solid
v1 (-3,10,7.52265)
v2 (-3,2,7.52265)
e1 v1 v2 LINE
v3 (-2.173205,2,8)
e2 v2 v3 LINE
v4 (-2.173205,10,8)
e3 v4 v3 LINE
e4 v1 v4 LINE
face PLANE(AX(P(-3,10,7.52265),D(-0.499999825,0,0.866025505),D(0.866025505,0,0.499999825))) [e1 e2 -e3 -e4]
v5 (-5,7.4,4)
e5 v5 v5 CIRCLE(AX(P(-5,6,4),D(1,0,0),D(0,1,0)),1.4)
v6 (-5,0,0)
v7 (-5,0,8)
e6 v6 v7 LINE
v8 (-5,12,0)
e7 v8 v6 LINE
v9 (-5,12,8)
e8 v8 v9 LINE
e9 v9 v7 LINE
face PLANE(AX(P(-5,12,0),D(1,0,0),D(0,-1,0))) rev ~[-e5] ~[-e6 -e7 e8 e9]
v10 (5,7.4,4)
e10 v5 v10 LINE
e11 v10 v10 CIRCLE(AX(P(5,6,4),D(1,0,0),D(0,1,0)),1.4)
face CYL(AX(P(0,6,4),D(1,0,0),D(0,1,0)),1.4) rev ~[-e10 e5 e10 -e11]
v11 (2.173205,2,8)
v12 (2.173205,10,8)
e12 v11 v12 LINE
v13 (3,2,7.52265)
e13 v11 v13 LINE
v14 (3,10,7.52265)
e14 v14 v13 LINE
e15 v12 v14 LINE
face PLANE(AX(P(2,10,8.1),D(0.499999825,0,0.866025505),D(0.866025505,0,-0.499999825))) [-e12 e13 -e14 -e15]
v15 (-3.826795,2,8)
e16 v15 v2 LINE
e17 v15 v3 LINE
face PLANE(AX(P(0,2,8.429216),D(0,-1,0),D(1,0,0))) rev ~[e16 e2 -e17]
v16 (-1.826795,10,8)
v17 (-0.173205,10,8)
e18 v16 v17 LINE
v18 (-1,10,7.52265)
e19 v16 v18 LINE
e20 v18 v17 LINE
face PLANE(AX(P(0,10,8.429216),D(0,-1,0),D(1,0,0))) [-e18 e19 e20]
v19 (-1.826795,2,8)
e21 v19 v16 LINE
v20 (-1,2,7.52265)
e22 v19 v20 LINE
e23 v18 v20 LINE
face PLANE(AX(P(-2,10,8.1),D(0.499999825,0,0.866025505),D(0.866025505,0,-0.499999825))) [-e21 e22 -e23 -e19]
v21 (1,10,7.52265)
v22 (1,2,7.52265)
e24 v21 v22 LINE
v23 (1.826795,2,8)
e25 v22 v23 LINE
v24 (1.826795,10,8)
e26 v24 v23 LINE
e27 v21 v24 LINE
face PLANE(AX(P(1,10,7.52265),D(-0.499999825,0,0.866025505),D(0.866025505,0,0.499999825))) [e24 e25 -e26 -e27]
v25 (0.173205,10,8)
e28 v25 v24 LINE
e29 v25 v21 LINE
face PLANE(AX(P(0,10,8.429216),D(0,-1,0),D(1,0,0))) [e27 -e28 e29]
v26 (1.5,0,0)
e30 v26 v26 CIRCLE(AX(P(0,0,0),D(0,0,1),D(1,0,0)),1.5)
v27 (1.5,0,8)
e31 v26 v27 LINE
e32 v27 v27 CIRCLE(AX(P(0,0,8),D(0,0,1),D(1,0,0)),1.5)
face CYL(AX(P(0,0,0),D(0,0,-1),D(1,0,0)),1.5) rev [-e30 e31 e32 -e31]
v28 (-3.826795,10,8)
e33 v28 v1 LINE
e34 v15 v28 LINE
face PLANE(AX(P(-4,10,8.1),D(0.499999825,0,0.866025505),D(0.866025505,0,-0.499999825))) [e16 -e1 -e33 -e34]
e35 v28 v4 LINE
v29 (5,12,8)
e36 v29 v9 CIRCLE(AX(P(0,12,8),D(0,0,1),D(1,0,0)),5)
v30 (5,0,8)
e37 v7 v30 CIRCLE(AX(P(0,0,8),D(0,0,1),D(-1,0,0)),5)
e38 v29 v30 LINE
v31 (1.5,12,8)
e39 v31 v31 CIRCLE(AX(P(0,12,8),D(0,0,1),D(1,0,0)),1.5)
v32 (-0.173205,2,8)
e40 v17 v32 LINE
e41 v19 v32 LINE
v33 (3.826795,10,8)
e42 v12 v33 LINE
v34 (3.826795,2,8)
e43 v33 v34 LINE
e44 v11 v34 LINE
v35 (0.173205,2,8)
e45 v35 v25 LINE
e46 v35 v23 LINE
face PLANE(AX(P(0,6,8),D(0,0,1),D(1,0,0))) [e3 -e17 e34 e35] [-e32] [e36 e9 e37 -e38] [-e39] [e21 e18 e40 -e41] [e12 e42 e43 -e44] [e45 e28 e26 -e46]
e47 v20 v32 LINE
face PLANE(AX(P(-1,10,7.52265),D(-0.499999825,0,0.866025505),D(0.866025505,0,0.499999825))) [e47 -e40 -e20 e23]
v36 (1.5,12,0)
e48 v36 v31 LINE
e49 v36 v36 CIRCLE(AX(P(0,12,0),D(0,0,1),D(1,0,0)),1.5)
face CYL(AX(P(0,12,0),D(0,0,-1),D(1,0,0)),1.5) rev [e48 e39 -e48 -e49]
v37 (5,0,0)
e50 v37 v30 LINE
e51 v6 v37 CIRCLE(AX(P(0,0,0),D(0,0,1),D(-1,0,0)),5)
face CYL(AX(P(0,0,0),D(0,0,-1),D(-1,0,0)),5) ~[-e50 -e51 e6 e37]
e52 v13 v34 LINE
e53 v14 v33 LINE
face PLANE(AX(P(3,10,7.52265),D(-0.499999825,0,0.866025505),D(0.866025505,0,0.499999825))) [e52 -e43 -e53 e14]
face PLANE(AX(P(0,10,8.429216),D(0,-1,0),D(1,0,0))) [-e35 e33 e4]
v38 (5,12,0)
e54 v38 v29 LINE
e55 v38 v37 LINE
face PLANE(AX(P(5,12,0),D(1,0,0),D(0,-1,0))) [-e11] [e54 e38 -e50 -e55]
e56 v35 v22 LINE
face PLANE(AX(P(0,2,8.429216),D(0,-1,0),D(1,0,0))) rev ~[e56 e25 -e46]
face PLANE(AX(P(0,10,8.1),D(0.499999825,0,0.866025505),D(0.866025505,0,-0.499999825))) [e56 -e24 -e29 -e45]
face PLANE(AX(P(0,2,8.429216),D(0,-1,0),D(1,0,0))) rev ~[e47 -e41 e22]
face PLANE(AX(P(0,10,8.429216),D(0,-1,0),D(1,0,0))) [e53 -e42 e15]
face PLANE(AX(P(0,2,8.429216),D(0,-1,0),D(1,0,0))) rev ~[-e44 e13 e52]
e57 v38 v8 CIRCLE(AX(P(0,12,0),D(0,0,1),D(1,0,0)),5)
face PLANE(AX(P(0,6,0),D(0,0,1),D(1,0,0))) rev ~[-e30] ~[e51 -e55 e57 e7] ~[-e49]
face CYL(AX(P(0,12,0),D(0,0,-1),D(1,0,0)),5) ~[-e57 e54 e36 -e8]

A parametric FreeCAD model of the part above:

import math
import FreeCAD as App
import Part
import Sketcher

V = App.Vector
Q = App.Units.Quantity

doc = App.newDocument("Part")
body = doc.addObject("PartDesign::Body", "Body")

# Sketch on XZ plane
sketch1 = doc.addObject("Sketcher::SketchObject", "Sketch")
body.addObject(sketch1)
sketch1.AttachmentSupport = (doc.XZ_Plane, [""])
sketch1.MapMode = "FlatFace"
sketch1.AttachmentOffset = App.Placement(V(0, 0, -10), App.Rotation())
sketch1.addGeometry([
    Part.LineSegment(V(-4, 8.1, 0), V(-3, 7.5, 0)),  # 0
    Part.LineSegment(V(-3, 7.5, 0), V(-2, 8.1, 0)),  # 1
    Part.LineSegment(V(-2, 8.1, 0), V(-1, 7.5, 0)),  # 2
    Part.LineSegment(V(-1, 7.5, 0), V(0, 8.1, 0)),  # 3
    Part.LineSegment(V(0, 8.1, 0), V(1, 7.5, 0)),  # 4
    Part.LineSegment(V(1, 7.5, 0), V(2, 8.1, 0)),  # 5
    Part.LineSegment(V(2, 8.1, 0), V(3, 7.5, 0)),  # 6
    Part.LineSegment(V(3, 7.5, 0), V(4, 8.1, 0)),  # 7
    Part.LineSegment(V(4, 8.1, 0), V(4, 9.1, 0)),  # 8
    Part.LineSegment(V(4, 9.1, 0), V(-4, 9.1, 0)),  # 9
    Part.LineSegment(V(-4, 9.1, 0), V(-4, 8.1, 0)),  # 10
], False)
sketch1.addConstraint([
    Sketcher.Constraint("Coincident", 0, 2, 1, 1),
    Sketcher.Constraint("Coincident", 1, 2, 2, 1),
    Sketcher.Constraint("Coincident", 2, 2, 3, 1),
    Sketcher.Constraint("Coincident", 3, 2, 4, 1),
    Sketcher.Constraint("Coincident", 4, 2, 5, 1),
    Sketcher.Constraint("Coincident", 5, 2, 6, 1),
    Sketcher.Constraint("Coincident", 6, 2, 7, 1),
    Sketcher.Constraint("Coincident", 7, 2, 8, 1),
    Sketcher.Constraint("Coincident", 8, 2, 9, 1),
    Sketcher.Constraint("Coincident", 9, 2, 10, 1),
    Sketcher.Constraint("Coincident", 10, 2, 0, 1),
    Sketcher.Constraint("Vertical", 8),
    Sketcher.Constraint("Horizontal", 9),
    Sketcher.Constraint("Vertical", 10),
    Sketcher.Constraint("Symmetric", 2, 2, 4, 2, -2),
    Sketcher.Constraint("Symmetric", 1, 2, 5, 2, -2),
    Sketcher.Constraint("Symmetric", 0, 2, 6, 2, -2),
    Sketcher.Constraint("Symmetric", 7, 2, 10, 2, -2),
    Sketcher.Constraint("PointOnObject", 3, 2, -2),
    Sketcher.Constraint("Parallel", 0, 2),
    Sketcher.Constraint("Parallel", 1, 3),
    Sketcher.Constraint("Parallel", 2, 4),
    Sketcher.Constraint("Horizontal", 0, 2, 2, 2),
    Sketcher.Constraint("Horizontal", 1, 2, 3, 2),
    Sketcher.Constraint("Horizontal", 5, 2, 7, 2),
    Sketcher.Constraint("DistanceX", 9, 2, 9, 1, 8.0),
    Sketcher.Constraint("DistanceY", 8, 1, 8, 2, 1.0),
    Sketcher.Constraint("Angle", 0, Q("-29.999988 deg")),
    Sketcher.Constraint("DistanceY", -1, 1, 1, 2, 8.1),
])
pad1 = doc.addObject("PartDesign::Pad", "Pad")
body.addObject(pad1)
pad1.Profile = sketch1
pad1.Length = 8
body2 = doc.addObject("PartDesign::Body", "Body001")
body2.AllowCompound = True

# Sketch on YZ plane
sketch2 = doc.addObject("Sketcher::SketchObject", "Sketch001")
body2.addObject(sketch2)
sketch2.AttachmentSupport = (doc.getObject("YZ_Plane001"), [""])
sketch2.MapMode = "FlatFace"
sketch2.addGeometry(Part.Circle(V(6, 4, 0), V(0, 0, 1), 1.4), False)
sketch2.addConstraint([
    Sketcher.Constraint("Diameter", 0, 2.8),
    Sketcher.Constraint("DistanceX", -1, 1, 0, 3, 6.0),
    Sketcher.Constraint("DistanceY", -1, 1, 0, 3, 4.0),
])
pad2 = doc.addObject("PartDesign::Pad", "Pad001")
body2.addObject(pad2)
pad2.Profile = sketch2
pad2.Length = 10
pad2.Midplane = True
doc.recompute()

boolean = doc.addObject("PartDesign::Boolean", "Boolean")
body2.addObject(boolean)
boolean.Type = "Fuse"
boolean.addObjects([body])
body3 = doc.addObject("PartDesign::Body", "Body002")

# Sketch on XY plane
sketch3 = doc.addObject("Sketcher::SketchObject", "Sketch002")
body3.addObject(sketch3)
sketch3.AttachmentSupport = (doc.getObject("XY_Plane002"), [""])
sketch3.MapMode = "FlatFace"
sketch3.addGeometry([
    Part.ArcOfCircle(Part.Circle(V(0, 12, 0), V(0, 0, 1), 5), math.radians(0), math.radians(180)),  # 0
    Part.LineSegment(V(-5, 12, 0), V(-5, 0, 0)),  # 1
    Part.ArcOfCircle(Part.Circle(V(0, 0, 0), V(0, 0, 1), 5), math.radians(180), math.radians(360)),  # 2
    Part.LineSegment(V(5, 0, 0), V(5, 12, 0)),  # 3
    Part.Circle(V(0, 0, 0), V(0, 0, 1), 1.5),  # 4
    Part.Circle(V(0, 12, 0), V(0, 0, 1), 1.5),  # 5
], False)
sketch3.addConstraint([
    Sketcher.Constraint("Tangent", 0, 2, 1, 1),
    Sketcher.Constraint("Tangent", 1, 2, 2, 1),
    Sketcher.Constraint("Tangent", 2, 2, 3, 1),
    Sketcher.Constraint("Tangent", 3, 2, 0, 1),
    Sketcher.Constraint("Vertical", 1),
    Sketcher.Constraint("Vertical", 3),
    Sketcher.Constraint("Coincident", 2, 3, -1, 1),
    Sketcher.Constraint("Coincident", 4, 3, -1, 1),
    Sketcher.Constraint("Coincident", 5, 3, 0, 3),
    Sketcher.Constraint("Equal", 4, 5),
    Sketcher.Constraint("Diameter", 4, 3.0),
    Sketcher.Constraint("Radius", 0, 5.0),
    Sketcher.Constraint("DistanceY", 1, 2, 1, 1, 12.0),
])
pad3 = doc.addObject("PartDesign::Pad", "Pad002")
body3.addObject(pad3)
pad3.Profile = sketch3
pad3.Length = 8
doc.recompute()

boolean2 = doc.addObject("PartDesign::Boolean", "Boolean001")
body3.addObject(boolean2)
boolean2.Type = "Cut"
boolean2.addObjects([body2])

doc.recompute()
